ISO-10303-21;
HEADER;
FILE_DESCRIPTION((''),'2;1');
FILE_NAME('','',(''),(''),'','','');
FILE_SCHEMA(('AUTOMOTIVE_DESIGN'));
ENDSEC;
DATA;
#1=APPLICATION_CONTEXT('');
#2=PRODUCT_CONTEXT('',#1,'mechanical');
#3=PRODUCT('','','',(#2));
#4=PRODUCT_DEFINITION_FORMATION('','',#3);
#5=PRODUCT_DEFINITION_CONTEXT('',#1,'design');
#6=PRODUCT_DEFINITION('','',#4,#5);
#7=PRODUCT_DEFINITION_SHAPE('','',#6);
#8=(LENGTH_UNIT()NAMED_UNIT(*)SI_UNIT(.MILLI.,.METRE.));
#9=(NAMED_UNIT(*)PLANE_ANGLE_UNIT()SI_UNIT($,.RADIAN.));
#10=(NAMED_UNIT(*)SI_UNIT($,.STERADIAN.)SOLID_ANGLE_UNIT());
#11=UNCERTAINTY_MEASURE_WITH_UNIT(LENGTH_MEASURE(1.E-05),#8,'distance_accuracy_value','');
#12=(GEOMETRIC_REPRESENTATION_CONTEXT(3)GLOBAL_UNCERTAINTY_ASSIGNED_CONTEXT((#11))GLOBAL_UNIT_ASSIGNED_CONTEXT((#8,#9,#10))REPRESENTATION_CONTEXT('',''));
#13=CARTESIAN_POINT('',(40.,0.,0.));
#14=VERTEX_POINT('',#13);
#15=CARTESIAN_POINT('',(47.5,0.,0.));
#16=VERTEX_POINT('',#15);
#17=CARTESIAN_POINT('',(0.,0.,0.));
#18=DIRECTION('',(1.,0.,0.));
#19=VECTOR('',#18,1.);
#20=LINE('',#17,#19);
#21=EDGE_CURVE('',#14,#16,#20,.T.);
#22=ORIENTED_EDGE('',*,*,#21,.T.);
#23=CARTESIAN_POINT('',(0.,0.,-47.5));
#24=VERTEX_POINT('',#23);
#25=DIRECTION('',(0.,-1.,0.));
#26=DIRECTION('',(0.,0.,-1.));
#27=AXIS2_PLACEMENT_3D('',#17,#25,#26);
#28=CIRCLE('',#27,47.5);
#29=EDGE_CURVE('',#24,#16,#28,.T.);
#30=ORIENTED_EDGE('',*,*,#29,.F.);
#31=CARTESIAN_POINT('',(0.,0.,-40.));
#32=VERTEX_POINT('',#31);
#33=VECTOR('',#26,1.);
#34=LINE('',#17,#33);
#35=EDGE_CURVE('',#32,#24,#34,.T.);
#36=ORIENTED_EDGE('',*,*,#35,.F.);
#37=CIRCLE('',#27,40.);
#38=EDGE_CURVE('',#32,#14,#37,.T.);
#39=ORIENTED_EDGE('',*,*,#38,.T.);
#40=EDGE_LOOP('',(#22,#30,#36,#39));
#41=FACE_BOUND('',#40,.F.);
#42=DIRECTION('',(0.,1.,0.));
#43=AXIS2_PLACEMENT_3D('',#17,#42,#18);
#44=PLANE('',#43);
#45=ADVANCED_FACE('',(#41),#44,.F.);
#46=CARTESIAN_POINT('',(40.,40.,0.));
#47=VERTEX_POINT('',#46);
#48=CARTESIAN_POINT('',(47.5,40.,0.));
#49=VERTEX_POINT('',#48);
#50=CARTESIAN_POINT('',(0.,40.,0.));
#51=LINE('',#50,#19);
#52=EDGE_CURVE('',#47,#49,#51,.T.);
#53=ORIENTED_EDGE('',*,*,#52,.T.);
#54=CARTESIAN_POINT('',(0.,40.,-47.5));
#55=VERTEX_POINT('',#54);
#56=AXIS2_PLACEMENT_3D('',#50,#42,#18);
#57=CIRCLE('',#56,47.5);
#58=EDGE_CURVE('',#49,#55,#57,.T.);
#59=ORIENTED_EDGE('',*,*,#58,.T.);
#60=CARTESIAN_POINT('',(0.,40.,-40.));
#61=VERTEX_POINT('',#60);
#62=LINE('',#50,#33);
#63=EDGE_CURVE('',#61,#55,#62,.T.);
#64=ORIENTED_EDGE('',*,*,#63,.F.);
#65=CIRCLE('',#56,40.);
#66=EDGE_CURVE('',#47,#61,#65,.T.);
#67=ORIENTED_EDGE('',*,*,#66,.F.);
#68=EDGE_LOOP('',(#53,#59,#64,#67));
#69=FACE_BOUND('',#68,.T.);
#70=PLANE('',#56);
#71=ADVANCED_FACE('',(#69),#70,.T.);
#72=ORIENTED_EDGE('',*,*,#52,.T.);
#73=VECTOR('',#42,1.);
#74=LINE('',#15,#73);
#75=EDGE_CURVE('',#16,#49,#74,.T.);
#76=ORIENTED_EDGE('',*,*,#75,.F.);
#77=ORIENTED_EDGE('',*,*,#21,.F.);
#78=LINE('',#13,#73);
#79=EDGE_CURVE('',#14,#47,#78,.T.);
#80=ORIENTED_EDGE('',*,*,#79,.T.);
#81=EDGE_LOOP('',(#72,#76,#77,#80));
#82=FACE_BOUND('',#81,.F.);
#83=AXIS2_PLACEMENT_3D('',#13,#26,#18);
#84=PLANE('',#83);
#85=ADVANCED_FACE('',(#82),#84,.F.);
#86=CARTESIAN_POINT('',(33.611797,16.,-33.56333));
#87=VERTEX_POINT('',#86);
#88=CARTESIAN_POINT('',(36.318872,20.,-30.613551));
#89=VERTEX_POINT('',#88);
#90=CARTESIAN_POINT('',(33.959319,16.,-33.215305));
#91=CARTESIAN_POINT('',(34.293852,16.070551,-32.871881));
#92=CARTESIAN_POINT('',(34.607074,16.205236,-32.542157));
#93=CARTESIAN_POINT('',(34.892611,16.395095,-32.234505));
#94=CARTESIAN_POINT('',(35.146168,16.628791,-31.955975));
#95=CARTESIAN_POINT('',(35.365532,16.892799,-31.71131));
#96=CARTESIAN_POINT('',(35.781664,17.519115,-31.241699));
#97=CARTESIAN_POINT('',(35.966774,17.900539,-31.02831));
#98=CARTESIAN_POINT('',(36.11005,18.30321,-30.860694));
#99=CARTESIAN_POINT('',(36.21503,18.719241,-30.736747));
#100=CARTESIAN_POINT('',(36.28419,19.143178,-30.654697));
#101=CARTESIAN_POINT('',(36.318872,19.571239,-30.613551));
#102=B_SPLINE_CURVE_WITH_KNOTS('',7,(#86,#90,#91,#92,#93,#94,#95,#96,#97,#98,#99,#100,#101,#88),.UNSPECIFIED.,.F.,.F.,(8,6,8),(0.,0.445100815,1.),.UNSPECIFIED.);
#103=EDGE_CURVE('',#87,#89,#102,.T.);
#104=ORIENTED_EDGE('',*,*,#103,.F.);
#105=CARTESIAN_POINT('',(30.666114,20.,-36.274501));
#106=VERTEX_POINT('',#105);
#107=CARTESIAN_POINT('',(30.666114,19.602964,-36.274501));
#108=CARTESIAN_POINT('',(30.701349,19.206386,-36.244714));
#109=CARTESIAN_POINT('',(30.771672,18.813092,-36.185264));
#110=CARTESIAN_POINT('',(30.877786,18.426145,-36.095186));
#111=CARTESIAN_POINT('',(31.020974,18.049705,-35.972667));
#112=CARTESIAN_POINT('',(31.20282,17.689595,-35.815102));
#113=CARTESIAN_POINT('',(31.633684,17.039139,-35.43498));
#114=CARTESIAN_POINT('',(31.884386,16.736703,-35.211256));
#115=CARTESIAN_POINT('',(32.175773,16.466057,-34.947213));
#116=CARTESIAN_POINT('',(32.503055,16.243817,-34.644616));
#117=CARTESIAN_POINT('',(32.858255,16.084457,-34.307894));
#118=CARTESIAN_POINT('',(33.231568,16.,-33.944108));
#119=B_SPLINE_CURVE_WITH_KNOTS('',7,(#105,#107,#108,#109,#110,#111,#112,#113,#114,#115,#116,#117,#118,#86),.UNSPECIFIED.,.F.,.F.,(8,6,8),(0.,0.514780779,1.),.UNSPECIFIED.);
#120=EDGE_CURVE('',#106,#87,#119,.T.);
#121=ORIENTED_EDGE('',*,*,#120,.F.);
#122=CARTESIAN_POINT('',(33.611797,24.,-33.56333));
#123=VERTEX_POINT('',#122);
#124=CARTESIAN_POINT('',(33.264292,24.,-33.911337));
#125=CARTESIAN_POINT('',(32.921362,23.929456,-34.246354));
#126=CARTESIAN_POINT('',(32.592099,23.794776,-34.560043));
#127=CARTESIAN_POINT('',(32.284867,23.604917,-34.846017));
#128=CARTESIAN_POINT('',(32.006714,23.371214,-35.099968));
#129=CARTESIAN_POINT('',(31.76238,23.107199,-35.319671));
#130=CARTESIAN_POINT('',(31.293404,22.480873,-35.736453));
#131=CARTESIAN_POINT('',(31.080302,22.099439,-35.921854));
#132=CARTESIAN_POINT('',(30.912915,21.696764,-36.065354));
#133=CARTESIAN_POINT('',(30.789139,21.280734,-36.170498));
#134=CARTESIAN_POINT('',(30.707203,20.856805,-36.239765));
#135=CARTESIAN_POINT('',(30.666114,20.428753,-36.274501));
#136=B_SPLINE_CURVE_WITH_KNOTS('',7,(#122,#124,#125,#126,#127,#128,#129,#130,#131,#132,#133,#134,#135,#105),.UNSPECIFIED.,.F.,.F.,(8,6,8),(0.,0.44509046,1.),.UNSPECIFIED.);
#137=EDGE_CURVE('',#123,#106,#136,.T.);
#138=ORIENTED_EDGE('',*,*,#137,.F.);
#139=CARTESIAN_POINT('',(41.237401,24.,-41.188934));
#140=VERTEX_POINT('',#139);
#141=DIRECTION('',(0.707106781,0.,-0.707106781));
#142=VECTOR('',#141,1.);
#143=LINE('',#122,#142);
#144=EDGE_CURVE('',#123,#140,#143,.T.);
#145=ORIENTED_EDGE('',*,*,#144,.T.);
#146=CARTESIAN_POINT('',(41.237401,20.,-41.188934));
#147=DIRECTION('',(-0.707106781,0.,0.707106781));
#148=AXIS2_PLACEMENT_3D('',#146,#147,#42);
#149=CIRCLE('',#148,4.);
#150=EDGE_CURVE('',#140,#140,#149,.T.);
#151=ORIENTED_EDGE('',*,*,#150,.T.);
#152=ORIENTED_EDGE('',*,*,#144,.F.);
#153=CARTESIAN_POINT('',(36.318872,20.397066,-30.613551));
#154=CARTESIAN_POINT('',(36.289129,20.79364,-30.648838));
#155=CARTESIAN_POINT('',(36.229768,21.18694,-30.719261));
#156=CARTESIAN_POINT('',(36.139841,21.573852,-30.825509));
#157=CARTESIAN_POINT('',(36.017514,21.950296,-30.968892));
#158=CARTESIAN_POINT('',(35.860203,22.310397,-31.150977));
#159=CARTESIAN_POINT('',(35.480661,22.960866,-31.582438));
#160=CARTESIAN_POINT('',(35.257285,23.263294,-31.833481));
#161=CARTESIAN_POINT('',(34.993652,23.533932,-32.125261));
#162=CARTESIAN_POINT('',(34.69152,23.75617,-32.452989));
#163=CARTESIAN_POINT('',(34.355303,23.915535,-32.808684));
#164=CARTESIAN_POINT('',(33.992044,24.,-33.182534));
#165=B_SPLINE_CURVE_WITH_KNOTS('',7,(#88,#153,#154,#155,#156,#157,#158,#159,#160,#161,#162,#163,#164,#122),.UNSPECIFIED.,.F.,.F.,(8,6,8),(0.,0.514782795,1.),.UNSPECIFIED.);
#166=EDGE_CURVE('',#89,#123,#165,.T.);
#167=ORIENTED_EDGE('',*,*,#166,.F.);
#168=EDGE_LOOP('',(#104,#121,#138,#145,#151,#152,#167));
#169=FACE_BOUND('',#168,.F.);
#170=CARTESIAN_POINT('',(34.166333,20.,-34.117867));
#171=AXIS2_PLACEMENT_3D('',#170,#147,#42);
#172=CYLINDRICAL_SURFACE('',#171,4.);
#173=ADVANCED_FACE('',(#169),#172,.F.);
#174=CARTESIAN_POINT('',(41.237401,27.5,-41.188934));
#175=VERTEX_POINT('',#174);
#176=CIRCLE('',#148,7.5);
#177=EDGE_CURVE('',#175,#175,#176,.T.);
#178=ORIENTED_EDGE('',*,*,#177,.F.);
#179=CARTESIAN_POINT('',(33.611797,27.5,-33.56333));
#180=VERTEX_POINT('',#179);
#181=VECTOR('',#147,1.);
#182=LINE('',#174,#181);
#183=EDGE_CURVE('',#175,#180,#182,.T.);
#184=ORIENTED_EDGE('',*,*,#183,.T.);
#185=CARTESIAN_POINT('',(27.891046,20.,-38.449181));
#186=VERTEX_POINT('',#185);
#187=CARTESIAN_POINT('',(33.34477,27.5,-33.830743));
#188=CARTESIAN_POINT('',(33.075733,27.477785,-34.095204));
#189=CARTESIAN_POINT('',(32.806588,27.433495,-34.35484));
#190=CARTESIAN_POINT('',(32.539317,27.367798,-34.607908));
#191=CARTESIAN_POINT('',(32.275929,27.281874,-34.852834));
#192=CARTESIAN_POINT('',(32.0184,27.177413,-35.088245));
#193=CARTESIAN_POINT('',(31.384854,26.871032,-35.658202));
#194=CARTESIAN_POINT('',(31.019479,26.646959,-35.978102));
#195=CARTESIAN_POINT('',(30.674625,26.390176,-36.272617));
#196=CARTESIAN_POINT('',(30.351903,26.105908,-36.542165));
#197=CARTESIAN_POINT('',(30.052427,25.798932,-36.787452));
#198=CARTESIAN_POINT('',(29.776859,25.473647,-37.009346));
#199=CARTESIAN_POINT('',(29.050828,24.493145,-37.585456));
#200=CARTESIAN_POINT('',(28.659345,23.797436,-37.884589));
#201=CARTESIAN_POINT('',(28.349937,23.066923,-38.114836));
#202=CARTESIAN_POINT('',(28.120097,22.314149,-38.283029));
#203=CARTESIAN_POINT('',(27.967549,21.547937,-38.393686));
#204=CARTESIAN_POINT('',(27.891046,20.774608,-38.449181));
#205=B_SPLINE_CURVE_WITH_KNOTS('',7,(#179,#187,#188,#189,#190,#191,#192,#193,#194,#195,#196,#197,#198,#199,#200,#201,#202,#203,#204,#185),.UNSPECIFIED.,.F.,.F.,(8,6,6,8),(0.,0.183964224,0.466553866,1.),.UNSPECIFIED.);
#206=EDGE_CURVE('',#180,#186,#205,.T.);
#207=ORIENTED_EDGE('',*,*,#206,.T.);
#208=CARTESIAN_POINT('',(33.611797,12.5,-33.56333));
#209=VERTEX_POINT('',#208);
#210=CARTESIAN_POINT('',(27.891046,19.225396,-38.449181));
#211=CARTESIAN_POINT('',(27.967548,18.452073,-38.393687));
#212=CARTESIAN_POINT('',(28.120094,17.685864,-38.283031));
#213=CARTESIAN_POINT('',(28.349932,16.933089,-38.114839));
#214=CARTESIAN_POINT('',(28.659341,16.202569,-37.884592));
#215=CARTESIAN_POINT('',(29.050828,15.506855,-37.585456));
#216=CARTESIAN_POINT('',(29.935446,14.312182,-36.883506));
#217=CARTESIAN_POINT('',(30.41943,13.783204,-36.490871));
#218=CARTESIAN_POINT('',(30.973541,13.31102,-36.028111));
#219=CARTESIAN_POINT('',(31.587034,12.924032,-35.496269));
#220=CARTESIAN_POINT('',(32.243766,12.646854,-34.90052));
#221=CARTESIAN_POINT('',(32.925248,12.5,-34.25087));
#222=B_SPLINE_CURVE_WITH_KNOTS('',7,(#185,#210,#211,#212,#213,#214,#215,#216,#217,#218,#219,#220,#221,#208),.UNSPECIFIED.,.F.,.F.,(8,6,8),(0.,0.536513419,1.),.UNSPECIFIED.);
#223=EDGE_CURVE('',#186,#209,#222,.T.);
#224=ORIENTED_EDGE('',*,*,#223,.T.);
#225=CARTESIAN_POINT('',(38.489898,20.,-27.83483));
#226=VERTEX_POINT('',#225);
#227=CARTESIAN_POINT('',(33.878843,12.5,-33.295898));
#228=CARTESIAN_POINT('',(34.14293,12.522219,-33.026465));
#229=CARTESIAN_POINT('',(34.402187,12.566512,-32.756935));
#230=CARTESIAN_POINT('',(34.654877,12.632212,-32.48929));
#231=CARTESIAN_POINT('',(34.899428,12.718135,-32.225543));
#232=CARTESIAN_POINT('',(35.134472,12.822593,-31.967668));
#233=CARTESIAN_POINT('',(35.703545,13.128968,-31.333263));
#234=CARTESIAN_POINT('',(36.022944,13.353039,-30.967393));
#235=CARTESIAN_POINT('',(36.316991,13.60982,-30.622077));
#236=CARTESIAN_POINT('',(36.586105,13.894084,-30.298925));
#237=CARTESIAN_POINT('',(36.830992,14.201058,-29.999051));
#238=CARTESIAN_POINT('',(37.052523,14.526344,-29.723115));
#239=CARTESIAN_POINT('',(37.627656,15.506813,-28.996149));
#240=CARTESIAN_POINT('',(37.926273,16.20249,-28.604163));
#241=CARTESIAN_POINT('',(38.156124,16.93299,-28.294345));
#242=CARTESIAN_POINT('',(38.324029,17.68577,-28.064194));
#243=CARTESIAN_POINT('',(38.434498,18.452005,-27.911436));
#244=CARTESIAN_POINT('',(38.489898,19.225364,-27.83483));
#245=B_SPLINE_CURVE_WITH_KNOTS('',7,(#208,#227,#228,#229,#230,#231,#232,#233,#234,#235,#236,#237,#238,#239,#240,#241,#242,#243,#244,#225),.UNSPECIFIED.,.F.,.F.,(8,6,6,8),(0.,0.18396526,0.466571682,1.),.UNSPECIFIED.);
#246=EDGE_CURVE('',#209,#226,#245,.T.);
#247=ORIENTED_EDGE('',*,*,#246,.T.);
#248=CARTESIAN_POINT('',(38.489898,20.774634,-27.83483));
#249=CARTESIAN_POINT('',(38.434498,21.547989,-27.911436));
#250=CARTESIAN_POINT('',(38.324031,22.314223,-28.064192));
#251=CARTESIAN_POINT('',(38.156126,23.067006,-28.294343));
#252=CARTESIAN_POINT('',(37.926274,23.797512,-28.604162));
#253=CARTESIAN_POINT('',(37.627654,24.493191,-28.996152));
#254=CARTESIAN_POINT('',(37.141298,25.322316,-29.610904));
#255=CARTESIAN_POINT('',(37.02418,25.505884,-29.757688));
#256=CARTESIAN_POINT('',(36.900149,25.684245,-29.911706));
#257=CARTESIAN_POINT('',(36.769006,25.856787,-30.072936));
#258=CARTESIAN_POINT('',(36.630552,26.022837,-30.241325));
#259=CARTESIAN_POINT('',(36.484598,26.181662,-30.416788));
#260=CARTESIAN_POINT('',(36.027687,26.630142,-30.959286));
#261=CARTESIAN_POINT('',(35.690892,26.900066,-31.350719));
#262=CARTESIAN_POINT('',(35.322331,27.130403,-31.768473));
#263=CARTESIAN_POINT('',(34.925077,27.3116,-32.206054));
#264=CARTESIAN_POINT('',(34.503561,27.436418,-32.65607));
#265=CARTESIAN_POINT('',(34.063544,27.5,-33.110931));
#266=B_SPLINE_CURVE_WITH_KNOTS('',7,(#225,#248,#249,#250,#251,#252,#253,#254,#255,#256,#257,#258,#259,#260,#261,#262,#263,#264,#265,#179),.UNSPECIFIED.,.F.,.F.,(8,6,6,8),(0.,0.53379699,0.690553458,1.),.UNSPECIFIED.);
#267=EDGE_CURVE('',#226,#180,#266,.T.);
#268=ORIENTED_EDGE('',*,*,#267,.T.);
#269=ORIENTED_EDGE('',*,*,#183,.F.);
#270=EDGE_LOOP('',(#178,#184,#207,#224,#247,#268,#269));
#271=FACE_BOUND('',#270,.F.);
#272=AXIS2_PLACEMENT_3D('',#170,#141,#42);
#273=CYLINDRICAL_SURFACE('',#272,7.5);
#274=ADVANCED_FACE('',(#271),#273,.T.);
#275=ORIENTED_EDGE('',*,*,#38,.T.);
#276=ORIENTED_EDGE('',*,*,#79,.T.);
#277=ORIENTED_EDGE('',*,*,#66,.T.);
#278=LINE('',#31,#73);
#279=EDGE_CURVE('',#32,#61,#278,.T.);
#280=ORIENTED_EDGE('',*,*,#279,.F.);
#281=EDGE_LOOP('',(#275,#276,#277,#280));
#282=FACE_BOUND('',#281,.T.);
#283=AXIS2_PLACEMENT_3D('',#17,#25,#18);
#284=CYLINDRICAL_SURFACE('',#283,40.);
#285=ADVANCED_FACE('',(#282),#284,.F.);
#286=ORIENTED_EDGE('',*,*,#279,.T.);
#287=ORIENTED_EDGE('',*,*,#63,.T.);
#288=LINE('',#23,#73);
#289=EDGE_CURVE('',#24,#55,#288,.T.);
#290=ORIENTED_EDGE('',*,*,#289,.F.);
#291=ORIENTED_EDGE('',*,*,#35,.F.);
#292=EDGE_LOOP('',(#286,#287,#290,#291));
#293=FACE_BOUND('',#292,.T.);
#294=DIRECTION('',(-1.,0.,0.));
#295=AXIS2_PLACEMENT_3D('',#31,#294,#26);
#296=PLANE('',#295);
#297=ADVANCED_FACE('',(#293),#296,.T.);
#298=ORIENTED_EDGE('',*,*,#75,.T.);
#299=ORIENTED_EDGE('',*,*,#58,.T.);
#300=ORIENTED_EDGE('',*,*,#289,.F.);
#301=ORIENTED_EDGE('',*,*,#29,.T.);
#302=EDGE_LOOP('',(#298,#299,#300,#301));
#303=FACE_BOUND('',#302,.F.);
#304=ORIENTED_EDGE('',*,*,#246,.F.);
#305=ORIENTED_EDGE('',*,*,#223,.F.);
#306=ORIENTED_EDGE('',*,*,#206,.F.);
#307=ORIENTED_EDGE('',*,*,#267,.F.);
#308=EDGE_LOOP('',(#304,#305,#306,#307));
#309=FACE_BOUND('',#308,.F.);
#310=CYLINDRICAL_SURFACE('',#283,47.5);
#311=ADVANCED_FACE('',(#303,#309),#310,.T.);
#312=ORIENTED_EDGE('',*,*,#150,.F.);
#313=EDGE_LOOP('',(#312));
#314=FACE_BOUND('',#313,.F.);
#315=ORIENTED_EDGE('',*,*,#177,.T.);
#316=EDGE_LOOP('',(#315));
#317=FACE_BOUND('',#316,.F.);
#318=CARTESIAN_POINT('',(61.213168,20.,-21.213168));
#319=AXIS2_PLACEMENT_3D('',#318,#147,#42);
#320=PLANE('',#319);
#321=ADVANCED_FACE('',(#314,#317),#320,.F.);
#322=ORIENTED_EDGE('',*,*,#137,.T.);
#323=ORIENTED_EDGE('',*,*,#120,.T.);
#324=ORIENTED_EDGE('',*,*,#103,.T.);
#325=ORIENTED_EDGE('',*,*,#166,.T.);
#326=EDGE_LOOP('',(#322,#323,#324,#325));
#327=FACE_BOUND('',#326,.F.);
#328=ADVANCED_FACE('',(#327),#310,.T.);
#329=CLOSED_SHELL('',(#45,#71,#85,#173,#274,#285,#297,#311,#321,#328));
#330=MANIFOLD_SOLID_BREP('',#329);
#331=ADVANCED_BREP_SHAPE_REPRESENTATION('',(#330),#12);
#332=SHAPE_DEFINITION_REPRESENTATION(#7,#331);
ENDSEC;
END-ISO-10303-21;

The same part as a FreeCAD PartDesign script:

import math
import FreeCAD as App
import Part
import Sketcher

V = App.Vector

doc = App.newDocument("Part")
body = doc.addObject("PartDesign::Body", "Body")

# Sketch on XZ plane
sketch1 = doc.addObject("Sketcher::SketchObject", "Sketch")
body.addObject(sketch1)
sketch1.AttachmentSupport = (doc.XZ_Plane, [""])
sketch1.MapMode = "FlatFace"
sketch1.addGeometry(Part.LineSegment(V(40, 0, 0), V(48, 0, 0)), False)
sketch1.addGeometry(Part.ArcOfCircle(Part.Circle(V(0, 0, 0), V(0, 0, 1), 48), math.radians(-90), math.radians(0)), False)
sketch1.addGeometry(Part.LineSegment(V(0, -48, 0), V(0, -40, 0)), False)
sketch1.addGeometry(Part.ArcOfCircle(Part.Circle(V(0, 0, 0), V(0, 0, 1), 40), math.radians(-90), math.radians(0)), False)
sketch1.addConstraint(Sketcher.Constraint("Coincident", 0, 2, 1, 2))
sketch1.addConstraint(Sketcher.Constraint("Coincident", 1, 1, 2, 1))
sketch1.addConstraint(Sketcher.Constraint("Coincident", 2, 2, 3, 1))
sketch1.addConstraint(Sketcher.Constraint("Coincident", 3, 2, 0, 1))
sketch1.addConstraint(Sketcher.Constraint("Horizontal", 0))
sketch1.addConstraint(Sketcher.Constraint("Vertical", 2))
sketch1.addConstraint(Sketcher.Constraint("Coincident", 1, 3, -1, 1))
sketch1.addConstraint(Sketcher.Constraint("Coincident", 3, 3, -1, 1))
sketch1.addConstraint(Sketcher.Constraint("PointOnObject", 0, 2, -1))
sketch1.addConstraint(Sketcher.Constraint("PointOnObject", 1, 1, -2))
sketch1.addConstraint(Sketcher.Constraint("Radius", 3, 40.0))
sketch1.addConstraint(Sketcher.Constraint("Radius", 1, 47.5))
pad1 = doc.addObject("PartDesign::Pad", "Pad")
body.addObject(pad1)
pad1.Profile = sketch1
pad1.Length = 40
pad1.Reversed = True

# Sketch on an angled plane
sketch2 = doc.addObject("Sketcher::SketchObject", "Sketch001")
body.addObject(sketch2)
sketch2.Placement = App.Placement(V(54.1421, 20, -14.1421), App.Rotation(V(0, 1, 0), V(-0.707106781, 0, -0.707106781), V(-0.707106781, 0, 0.707106781), "ZXY"))
sketch2.addGeometry(Part.Circle(V(0, 28.2, 0), V(0, 0, 1), 7.5), False)
sketch2.addGeometry(Part.Circle(V(0, 28.2, 0), V(0, 0, 1), 4), False)
sketch2.addConstraint(Sketcher.Constraint("Coincident", 1, 3, 0, 3))
sketch2.addConstraint(Sketcher.Constraint("PointOnObject", 0, 3, -2))
sketch2.addConstraint(Sketcher.Constraint("Diameter", 0, 15.0))
sketch2.addConstraint(Sketcher.Constraint("Diameter", 1, 8.0))
sketch2.addConstraint(Sketcher.Constraint("DistanceY", -1, 1, 0, 3, 28.25))
pad2 = doc.addObject("PartDesign::Pad", "Pad001")
body.addObject(pad2)
pad2.Profile = sketch2
pad2.Type = "TwoLengths"
pad2.Length = 2
pad2.Length2 = 10

doc.recompute()
